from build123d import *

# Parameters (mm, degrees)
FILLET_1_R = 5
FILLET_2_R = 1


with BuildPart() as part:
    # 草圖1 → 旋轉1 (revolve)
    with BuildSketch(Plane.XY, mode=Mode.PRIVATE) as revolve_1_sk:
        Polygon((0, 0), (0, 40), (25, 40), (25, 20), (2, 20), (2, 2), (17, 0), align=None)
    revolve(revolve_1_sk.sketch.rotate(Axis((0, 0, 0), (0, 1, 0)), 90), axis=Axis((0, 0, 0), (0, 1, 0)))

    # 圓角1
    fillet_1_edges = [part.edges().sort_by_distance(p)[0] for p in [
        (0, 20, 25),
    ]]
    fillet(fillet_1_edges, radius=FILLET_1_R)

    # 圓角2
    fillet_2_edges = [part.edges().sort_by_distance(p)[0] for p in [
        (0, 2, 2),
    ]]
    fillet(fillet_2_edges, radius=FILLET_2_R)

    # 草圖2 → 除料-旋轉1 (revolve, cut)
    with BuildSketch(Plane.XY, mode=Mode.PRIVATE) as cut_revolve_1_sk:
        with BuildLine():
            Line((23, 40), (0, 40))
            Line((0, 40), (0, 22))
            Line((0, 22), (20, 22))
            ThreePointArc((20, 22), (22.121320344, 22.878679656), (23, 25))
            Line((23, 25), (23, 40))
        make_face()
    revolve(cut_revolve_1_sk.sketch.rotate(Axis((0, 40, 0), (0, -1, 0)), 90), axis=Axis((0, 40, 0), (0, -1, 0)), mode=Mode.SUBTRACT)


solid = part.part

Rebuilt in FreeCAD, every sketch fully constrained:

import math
import FreeCAD as App
import Part
import Sketcher
from FreeCAD import Vector
Q = App.Units.Quantity


def edges_at(feature, points):
    """Names of the edges that pass closest to the given points."""
    edges = feature.Shape.Edges
    near = lambda p: min(range(len(edges)), key=lambda i: edges[i].distToShape(Part.Vertex(*p))[0])
    return sorted({f"Edge{near(p) + 1}" for p in points})

doc = App.newDocument("Part")
body = doc.addObject("PartDesign::Body", "Body")

# Sketch on XY plane
sketch1 = body.newObject("Sketcher::SketchObject", "Sketch")
sketch1.AttachmentSupport = (doc.getObject("XY_Plane"), [""])
sketch1.MapMode = "FlatFace"
sketch1.addGeometry(Part.LineSegment(Vector(0, 40, 0), Vector(0, 0, 0)), False)
sketch1.addGeometry(Part.LineSegment(Vector(0, 0, 0), Vector(17, 0, 0)), False)
sketch1.addGeometry(Part.LineSegment(Vector(17, 0, 0), Vector(2, 2, 0)), False)
sketch1.addGeometry(Part.LineSegment(Vector(2, 2, 0), Vector(2, 20, 0)), False)
sketch1.addGeometry(Part.LineSegment(Vector(2, 20, 0), Vector(25, 20, 0)), False)
sketch1.addGeometry(Part.LineSegment(Vector(25, 20, 0), Vector(25, 40, 0)), False)
sketch1.addGeometry(Part.LineSegment(Vector(25, 40, 0), Vector(0, 40, 0)), False)
sketch1.addConstraint(Sketcher.Constraint("Coincident", 0, 2, 1, 1))
sketch1.addConstraint(Sketcher.Constraint("Coincident", 1, 2, 2, 1))
sketch1.addConstraint(Sketcher.Constraint("Coincident", 2, 2, 3, 1))
sketch1.addConstraint(Sketcher.Constraint("Coincident", 3, 2, 4, 1))
sketch1.addConstraint(Sketcher.Constraint("Coincident", 4, 2, 5, 1))
sketch1.addConstraint(Sketcher.Constraint("Coincident", 5, 2, 6, 1))
sketch1.addConstraint(Sketcher.Constraint("Coincident", 6, 2, 0, 1))
sketch1.addConstraint(Sketcher.Constraint("Vertical", 0))
sketch1.addConstraint(Sketcher.Constraint("Horizontal", 1))
sketch1.addConstraint(Sketcher.Constraint("Vertical", 3))
sketch1.addConstraint(Sketcher.Constraint("Horizontal", 4))
sketch1.addConstraint(Sketcher.Constraint("Vertical", 5))
sketch1.addConstraint(Sketcher.Constraint("Horizontal", 6))
sketch1.addConstraint(Sketcher.Constraint("Coincident", 0, 2, -1, 1))
sketch1.addConstraint(Sketcher.Constraint("DistanceX", 1, 1, 1, 2, Q("17 mm")))
sketch1.addConstraint(Sketcher.Constraint("DistanceX", 4, 1, 4, 2, Q("23 mm")))
sketch1.addConstraint(Sketcher.Constraint("DistanceX", 6, 2, 6, 1, Q("25 mm")))
sketch1.addConstraint(Sketcher.Constraint("DistanceY", 0, 2, 0, 1, Q("40 mm")))
sketch1.addConstraint(Sketcher.Constraint("DistanceY", 3, 1, 3, 2, Q("18 mm")))
sketch1.addConstraint(Sketcher.Constraint("DistanceY", 5, 1, 5, 2, Q("20 mm")))
revolution = body.newObject("PartDesign::Revolution", "Revolution")
revolution.Profile = sketch1
revolution.ReferenceAxis = (sketch1, ["V_Axis"])
revolution.Angle = 360
doc.recompute()

fillet = body.newObject("PartDesign::Fillet", "Fillet")
fillet.Base = (revolution, edges_at(revolution, [(0, 20, 25)]))
fillet.Radius = 5
doc.recompute()

fillet2 = body.newObject("PartDesign::Fillet", "Fillet001")
fillet2.Base = (fillet, edges_at(fillet, [(0, 2, 2)]))
fillet2.Radius = 1

# Sketch on XY plane
sketch2 = body.newObject("Sketcher::SketchObject", "Sketch001")
sketch2.AttachmentSupport = (doc.getObject("XY_Plane"), [""])
sketch2.MapMode = "FlatFace"
sketch2.addGeometry(Part.LineSegment(Vector(23, 40, 0), Vector(0, 40, 0)), False)
sketch2.addGeometry(Part.LineSegment(Vector(0, 40, 0), Vector(0, 22, 0)), False)
sketch2.addGeometry(Part.LineSegment(Vector(0, 22, 0), Vector(20, 22, 0)), False)
sketch2.addGeometry(Part.ArcOfCircle(Part.Circle(Vector(20, 25, 0), Vector(0, 0, 1), 3), math.radians(-90), math.radians(0)), False)
sketch2.addGeometry(Part.LineSegment(Vector(23, 25, 0), Vector(23, 40, 0)), False)
sketch2.addConstraint(Sketcher.Constraint("Coincident", 0, 2, 1, 1))
sketch2.addConstraint(Sketcher.Constraint("Coincident", 1, 2, 2, 1))
sketch2.addConstraint(Sketcher.Constraint("Tangent", 2, 2, 3, 1))
sketch2.addConstraint(Sketcher.Constraint("Tangent", 3, 2, 4, 1))
sketch2.addConstraint(Sketcher.Constraint("Coincident", 4, 2, 0, 1))
sketch2.addConstraint(Sketcher.Constraint("Horizontal", 0))
sketch2.addConstraint(Sketcher.Constraint("Vertical", 1))
sketch2.addConstraint(Sketcher.Constraint("Horizontal", 2))
sketch2.addConstraint(Sketcher.Constraint("Vertical", 4))
sketch2.addConstraint(Sketcher.Constraint("PointOnObject", 0, 2, -2))
sketch2.addConstraint(Sketcher.Constraint("Radius", 3, Q("3 mm")))
sketch2.addConstraint(Sketcher.Constraint("DistanceX", 0, 2, 0, 1, Q("23 mm")))
sketch2.addConstraint(Sketcher.Constraint("DistanceY", 1, 2, 1, 1, Q("18 mm")))
sketch2.addConstraint(Sketcher.Constraint("DistanceY", -1, 1, 3, 3, Q("25 mm")))
groove = body.newObject("PartDesign::Groove", "Groove")
groove.Profile = sketch2
groove.ReferenceAxis = (sketch2, ["V_Axis"])
groove.Angle = 360

doc.recompute()
